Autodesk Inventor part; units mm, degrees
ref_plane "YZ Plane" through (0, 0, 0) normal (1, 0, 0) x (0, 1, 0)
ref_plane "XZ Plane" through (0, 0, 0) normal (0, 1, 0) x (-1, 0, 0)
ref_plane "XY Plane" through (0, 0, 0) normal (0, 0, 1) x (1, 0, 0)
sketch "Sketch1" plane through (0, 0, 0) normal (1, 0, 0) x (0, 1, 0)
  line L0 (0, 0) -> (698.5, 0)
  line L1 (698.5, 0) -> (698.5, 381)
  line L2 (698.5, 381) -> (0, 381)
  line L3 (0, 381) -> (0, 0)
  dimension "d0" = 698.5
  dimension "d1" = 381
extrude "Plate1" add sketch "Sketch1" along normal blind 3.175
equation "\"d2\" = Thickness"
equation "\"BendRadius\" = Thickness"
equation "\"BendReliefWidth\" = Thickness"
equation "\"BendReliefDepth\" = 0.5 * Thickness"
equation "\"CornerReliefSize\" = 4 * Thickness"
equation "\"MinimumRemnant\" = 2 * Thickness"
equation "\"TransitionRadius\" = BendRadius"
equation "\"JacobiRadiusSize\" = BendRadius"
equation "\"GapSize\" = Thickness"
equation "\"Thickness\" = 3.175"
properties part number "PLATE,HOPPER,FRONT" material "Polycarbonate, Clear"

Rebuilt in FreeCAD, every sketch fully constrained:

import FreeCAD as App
import Part
import Sketcher
from FreeCAD import Vector
Q = App.Units.Quantity


def add_polygon(sketch, points):
    """Adds a closed chain of lines whose ends are joined by coincident constraints."""
    first, n = sketch.GeometryCount, len(points)
    for a, b in zip(points, points[1:] + points[:1]):
        sketch.addGeometry(Part.LineSegment(App.Vector(*a, 0), App.Vector(*b, 0)), False)
    for i in range(n):
        sketch.addConstraint(Sketcher.Constraint("Coincident", first + i, 2, first + (i + 1) % n, 1))

doc = App.newDocument("Part")
body = doc.addObject("PartDesign::Body", "Body")

# Sketch on YZ plane
sketch1 = body.newObject("Sketcher::SketchObject", "Sketch")
sketch1.AttachmentSupport = (doc.getObject("YZ_Plane"), [""])
sketch1.MapMode = "FlatFace"
add_polygon(sketch1, [(0, 381), (0, 0), (698, 0), (698, 381)])  # lines 0-3
sketch1.addConstraint(Sketcher.Constraint("Vertical", 0))
sketch1.addConstraint(Sketcher.Constraint("Horizontal", 1))
sketch1.addConstraint(Sketcher.Constraint("Vertical", 2))
sketch1.addConstraint(Sketcher.Constraint("Horizontal", 3))
sketch1.addConstraint(Sketcher.Constraint("Coincident", 0, 2, -1, 1))
sketch1.addConstraint(Sketcher.Constraint("DistanceY", 0, 2, 0, 1, Q("15 in")))
sketch1.addConstraint(Sketcher.Constraint("DistanceX", 1, 1, 1, 2, Q("27.5 in")))
pad1 = body.newObject("PartDesign::Pad", "Pad")
pad1.Profile = sketch1
pad1.Length = Q("0.125 in")

doc.recompute()
